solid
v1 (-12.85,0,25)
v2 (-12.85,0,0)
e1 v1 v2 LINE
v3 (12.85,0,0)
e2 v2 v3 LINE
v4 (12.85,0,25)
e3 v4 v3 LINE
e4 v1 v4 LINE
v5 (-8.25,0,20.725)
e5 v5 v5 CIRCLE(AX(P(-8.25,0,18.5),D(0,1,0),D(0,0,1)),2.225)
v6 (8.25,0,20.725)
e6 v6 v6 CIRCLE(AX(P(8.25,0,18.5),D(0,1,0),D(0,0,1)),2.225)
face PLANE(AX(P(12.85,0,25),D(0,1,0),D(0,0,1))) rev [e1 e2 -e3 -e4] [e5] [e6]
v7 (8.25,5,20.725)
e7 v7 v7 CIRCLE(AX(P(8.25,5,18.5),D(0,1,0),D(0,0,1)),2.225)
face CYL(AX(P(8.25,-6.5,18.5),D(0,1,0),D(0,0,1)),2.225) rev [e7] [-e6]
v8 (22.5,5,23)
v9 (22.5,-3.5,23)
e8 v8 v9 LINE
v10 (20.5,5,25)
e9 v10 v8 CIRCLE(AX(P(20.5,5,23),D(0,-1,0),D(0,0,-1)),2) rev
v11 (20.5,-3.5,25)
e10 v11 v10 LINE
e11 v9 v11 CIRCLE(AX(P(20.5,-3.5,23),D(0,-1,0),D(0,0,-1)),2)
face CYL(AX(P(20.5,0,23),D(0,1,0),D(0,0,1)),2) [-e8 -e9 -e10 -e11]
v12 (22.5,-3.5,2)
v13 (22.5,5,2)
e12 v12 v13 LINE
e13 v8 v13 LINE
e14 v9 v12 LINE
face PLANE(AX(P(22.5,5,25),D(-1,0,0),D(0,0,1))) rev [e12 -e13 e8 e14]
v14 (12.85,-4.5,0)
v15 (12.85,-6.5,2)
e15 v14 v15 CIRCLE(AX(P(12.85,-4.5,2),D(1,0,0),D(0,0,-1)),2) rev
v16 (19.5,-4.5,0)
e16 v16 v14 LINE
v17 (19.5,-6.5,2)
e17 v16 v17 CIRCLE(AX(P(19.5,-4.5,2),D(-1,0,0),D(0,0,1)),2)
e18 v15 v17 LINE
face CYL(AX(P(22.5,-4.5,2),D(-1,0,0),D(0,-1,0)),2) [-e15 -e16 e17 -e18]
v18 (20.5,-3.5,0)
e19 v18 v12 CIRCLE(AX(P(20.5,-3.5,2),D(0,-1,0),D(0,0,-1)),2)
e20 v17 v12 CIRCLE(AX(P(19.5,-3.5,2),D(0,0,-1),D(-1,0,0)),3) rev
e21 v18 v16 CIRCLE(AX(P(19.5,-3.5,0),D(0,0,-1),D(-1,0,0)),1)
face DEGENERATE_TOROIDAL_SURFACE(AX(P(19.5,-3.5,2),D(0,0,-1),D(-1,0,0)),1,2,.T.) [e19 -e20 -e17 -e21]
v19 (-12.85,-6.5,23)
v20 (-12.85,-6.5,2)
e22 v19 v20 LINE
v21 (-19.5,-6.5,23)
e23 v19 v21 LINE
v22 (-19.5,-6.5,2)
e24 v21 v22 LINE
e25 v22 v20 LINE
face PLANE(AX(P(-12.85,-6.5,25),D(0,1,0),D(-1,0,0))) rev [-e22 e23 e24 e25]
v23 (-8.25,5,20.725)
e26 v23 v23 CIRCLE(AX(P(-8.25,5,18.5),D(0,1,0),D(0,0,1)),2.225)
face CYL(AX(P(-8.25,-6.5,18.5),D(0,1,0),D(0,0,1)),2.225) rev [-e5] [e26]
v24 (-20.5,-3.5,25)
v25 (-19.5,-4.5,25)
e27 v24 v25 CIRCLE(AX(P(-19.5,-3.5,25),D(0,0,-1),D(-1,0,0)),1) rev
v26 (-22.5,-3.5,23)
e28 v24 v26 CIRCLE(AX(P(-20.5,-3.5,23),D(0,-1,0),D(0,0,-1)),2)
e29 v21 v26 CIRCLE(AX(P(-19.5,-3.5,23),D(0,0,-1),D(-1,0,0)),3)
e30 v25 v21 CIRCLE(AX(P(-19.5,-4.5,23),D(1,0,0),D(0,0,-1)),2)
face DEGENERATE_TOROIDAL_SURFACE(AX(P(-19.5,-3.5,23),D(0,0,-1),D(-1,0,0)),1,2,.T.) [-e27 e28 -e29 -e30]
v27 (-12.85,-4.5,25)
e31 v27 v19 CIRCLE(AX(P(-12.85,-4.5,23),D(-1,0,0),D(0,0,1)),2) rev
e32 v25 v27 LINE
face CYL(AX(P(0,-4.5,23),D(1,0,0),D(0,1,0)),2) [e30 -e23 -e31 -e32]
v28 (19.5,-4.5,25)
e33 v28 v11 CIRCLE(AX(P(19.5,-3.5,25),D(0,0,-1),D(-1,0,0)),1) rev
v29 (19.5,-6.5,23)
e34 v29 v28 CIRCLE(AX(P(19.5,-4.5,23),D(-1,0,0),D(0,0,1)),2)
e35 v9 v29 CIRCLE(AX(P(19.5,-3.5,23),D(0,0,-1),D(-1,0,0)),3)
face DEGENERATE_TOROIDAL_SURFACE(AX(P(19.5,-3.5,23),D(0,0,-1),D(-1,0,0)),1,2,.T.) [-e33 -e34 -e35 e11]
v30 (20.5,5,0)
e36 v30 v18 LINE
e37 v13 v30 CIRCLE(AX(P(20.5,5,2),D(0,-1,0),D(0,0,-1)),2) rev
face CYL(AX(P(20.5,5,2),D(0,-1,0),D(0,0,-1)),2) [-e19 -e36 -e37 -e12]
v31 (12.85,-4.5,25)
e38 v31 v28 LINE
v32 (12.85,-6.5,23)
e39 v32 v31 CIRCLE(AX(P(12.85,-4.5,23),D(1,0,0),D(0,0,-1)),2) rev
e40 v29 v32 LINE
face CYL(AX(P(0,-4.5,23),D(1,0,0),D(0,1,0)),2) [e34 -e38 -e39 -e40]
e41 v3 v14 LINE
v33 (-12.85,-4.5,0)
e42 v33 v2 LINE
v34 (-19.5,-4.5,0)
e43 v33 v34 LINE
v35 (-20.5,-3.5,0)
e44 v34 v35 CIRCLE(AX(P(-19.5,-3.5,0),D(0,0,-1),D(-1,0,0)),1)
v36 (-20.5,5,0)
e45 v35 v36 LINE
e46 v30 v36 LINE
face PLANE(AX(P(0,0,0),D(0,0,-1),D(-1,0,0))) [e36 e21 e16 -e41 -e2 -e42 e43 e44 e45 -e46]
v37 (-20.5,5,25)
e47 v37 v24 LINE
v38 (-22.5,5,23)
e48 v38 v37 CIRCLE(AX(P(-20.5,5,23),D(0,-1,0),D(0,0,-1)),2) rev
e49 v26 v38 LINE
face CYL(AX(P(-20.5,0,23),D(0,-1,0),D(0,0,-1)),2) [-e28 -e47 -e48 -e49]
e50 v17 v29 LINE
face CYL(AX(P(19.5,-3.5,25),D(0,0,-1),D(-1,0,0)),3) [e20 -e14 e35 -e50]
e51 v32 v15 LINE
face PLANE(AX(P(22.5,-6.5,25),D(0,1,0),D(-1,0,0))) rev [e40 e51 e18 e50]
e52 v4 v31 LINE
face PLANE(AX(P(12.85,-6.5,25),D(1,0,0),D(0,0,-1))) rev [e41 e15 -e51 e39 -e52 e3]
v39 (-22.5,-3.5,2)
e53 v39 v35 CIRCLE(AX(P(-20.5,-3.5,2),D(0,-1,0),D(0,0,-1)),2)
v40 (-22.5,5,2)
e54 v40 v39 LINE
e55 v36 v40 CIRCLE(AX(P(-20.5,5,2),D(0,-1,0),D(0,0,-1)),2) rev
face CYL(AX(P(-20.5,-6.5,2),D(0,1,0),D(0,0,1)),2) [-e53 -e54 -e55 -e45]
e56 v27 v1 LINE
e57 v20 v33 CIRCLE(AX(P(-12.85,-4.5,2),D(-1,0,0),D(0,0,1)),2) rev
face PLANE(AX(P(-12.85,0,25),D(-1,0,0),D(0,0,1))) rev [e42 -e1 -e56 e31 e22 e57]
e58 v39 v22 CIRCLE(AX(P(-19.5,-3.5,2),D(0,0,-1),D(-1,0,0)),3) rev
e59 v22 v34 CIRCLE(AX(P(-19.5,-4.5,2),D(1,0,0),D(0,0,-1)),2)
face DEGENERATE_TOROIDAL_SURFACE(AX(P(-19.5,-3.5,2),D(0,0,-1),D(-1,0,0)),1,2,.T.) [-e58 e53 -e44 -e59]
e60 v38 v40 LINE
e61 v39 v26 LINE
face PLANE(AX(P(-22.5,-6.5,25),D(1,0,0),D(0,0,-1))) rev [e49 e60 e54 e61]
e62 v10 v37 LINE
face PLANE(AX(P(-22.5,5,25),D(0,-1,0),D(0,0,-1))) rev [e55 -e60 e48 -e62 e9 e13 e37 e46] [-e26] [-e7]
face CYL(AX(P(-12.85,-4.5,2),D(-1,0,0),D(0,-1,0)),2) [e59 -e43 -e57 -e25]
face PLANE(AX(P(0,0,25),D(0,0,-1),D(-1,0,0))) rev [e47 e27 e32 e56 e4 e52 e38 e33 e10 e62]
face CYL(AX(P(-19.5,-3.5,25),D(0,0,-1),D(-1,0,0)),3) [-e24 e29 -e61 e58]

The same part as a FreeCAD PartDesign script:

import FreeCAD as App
import Part
import Sketcher
from FreeCAD import Vector


def edges_at(feature, points):
    """Names of the edges that pass closest to the given points."""
    edges = feature.Shape.Edges
    near = lambda p: min(range(len(edges)), key=lambda i: edges[i].distToShape(Part.Vertex(*p))[0])
    return sorted({f"Edge{near(p) + 1}" for p in points})


def add_polygon(sketch, points):
    """Adds a closed chain of lines whose ends are joined by coincident constraints."""
    first, n = sketch.GeometryCount, len(points)
    for a, b in zip(points, points[1:] + points[:1]):
        sketch.addGeometry(Part.LineSegment(App.Vector(*a, 0), App.Vector(*b, 0)), False)
    for i in range(n):
        sketch.addConstraint(Sketcher.Constraint("Coincident", first + i, 2, first + (i + 1) % n, 1))

doc = App.newDocument("Part")
body = doc.addObject("PartDesign::Body", "Body")

sketch1 = body.newObject("Sketcher::SketchObject", "Sketch")
sketch1.AttachmentSupport = (doc.getObject("XY_Plane"), [""])
sketch1.MapMode = "FlatFace"
add_polygon(sketch1, [(22, 5), (-22, 5), (-22, -6), (-13, -6), (-13, 0), (13, 0), (13, -6), (22, -6)])
sketch1.addConstraint([
    Sketcher.Constraint("Horizontal", 0),
    Sketcher.Constraint("Vertical", 1),
    Sketcher.Constraint("Horizontal", 2),
    Sketcher.Constraint("Vertical", 3),
    Sketcher.Constraint("Horizontal", 4),
    Sketcher.Constraint("Vertical", 5),
    Sketcher.Constraint("Horizontal", 6),
    Sketcher.Constraint("Vertical", 7),
    Sketcher.Constraint("Symmetric", 3, 2, 4, 2, -1, 1),
    Sketcher.Constraint("Symmetric", 1, 2, 6, 2, -2),
    Sketcher.Constraint("DistanceX", 0, 2, 0, 1, 45.0),
    Sketcher.Constraint("DistanceX", 4, 1, 4, 2, 25.7),
    Sketcher.Constraint("DistanceY", 1, 2, 1, 1, 11.5),
    Sketcher.Constraint("DistanceY", 3, 1, 3, 2, 6.5),
])
pad1 = body.newObject("PartDesign::Pad", "Pad")
pad1.Profile = sketch1
pad1.Length = 25

sketch2 = body.newObject("Sketcher::SketchObject", "Sketch001")
sketch2.AttachmentSupport = (doc.getObject("XZ_Plane"), [""])
sketch2.MapMode = "FlatFace"
sketch2.AttachmentOffset = App.Placement(Vector(0, 0, -5), App.Rotation())
sketch2.addGeometry([
    Part.Circle(Vector(-8.2, 18.5, 0), Vector(0, 0, 1), 2.2),
    Part.Circle(Vector(8.2, 18.5, 0), Vector(0, 0, 1), 2.2),
], False)
sketch2.addConstraint([
    Sketcher.Constraint("Equal", 0, 1),
    Sketcher.Constraint("Symmetric", 0, 3, 1, 3, -2),
    Sketcher.Constraint("Diameter", 0, 4.45),
    Sketcher.Constraint("DistanceY", -1, 1, 0, 3, 18.5),
    Sketcher.Constraint("DistanceX", 0, 3, 1, 3, 16.5),
])
pocket1 = body.newObject("PartDesign::Pocket", "Pocket")
pocket1.Profile = sketch2
pocket1.Type = "ThroughAll"
pocket1.Reversed = True
doc.recompute()

fillet = body.newObject("PartDesign::Fillet", "Fillet")
fillet.Base = (pocket1, edges_at(pocket1, [(22.5, -6.5, 12.5), (-22.5, -6.5, 12.5)]))
fillet.Radius = 3
doc.recompute()

fillet2 = body.newObject("PartDesign::Fillet", "Fillet001")
fillet2.Base = (fillet, edges_at(fillet, [
    (-22.5, 0.75, 0),
    (16.175, -6.5, 25),
    (22.5, 0.75, 0),
    (22.5, 0.75, 25),
    (-16.175, -6.5, 0),
    (-21.621, -5.621, 0),
    (21.621, -5.621, 0),
    (-16.175, -6.5, 25),
    (-21.621, -5.621, 25),
    (21.621, -5.621, 25),
    (-22.5, 0.75, 25),
    (16.175, -6.5, 0),
]))
fillet2.Radius = 2

doc.recompute()
